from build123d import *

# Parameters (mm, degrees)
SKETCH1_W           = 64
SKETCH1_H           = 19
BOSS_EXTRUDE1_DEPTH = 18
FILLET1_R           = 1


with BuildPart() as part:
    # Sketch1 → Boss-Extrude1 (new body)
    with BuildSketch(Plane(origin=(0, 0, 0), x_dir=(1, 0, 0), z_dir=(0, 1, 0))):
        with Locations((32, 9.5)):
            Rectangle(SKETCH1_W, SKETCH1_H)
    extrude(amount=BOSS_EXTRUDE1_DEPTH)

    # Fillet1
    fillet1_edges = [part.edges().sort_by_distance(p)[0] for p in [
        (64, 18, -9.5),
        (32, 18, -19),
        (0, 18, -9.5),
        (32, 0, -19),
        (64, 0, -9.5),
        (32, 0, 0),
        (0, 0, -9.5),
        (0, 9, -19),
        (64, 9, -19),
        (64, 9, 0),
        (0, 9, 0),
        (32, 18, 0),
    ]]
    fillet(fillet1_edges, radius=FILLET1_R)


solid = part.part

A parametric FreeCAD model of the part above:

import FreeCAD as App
import Part
import Sketcher
from FreeCAD import Vector
Q = App.Units.Quantity


def add_polygon(sketch, points):
    """Adds a closed chain of lines whose ends are joined by coincident constraints."""
    first, n = sketch.GeometryCount, len(points)
    for a, b in zip(points, points[1:] + points[:1]):
        sketch.addGeometry(Part.LineSegment(App.Vector(*a, 0), App.Vector(*b, 0)), False)
    for i in range(n):
        sketch.addConstraint(Sketcher.Constraint("Coincident", first + i, 2, first + (i + 1) % n, 1))

doc = App.newDocument("Part")
body = doc.addObject("PartDesign::Body", "Body")

# Sketch on XZ plane
sketch1 = body.newObject("Sketcher::SketchObject", "Sketch")
sketch1.AttachmentSupport = (doc.getObject("XZ_Plane"), [""])
sketch1.MapMode = "FlatFace"
add_polygon(sketch1, [(0, -19), (0, 0), (64, 0), (64, -19)])  # lines 0-3
sketch1.addConstraint([
    Sketcher.Constraint("Vertical", 0),
    Sketcher.Constraint("Horizontal", 1),
    Sketcher.Constraint("Vertical", 2),
    Sketcher.Constraint("Horizontal", 3),
    Sketcher.Constraint("Coincident", 0, 2, -1, 1),
    Sketcher.Constraint("DistanceX", 1, 1, 1, 2, Q("64 mm")),
    Sketcher.Constraint("DistanceY", 0, 1, 0, 2, Q("19 mm")),
])
pad1 = body.newObject("PartDesign::Pad", "Pad")
pad1.Profile = sketch1
pad1.Length = 18
pad1.Reversed = True
doc.recompute()

fillet = body.newObject("PartDesign::Fillet", "Fillet")
fillet.Base = (pad1, ["Edge1"])
fillet.UseAllEdges = True
fillet.Radius = 1

doc.recompute()
